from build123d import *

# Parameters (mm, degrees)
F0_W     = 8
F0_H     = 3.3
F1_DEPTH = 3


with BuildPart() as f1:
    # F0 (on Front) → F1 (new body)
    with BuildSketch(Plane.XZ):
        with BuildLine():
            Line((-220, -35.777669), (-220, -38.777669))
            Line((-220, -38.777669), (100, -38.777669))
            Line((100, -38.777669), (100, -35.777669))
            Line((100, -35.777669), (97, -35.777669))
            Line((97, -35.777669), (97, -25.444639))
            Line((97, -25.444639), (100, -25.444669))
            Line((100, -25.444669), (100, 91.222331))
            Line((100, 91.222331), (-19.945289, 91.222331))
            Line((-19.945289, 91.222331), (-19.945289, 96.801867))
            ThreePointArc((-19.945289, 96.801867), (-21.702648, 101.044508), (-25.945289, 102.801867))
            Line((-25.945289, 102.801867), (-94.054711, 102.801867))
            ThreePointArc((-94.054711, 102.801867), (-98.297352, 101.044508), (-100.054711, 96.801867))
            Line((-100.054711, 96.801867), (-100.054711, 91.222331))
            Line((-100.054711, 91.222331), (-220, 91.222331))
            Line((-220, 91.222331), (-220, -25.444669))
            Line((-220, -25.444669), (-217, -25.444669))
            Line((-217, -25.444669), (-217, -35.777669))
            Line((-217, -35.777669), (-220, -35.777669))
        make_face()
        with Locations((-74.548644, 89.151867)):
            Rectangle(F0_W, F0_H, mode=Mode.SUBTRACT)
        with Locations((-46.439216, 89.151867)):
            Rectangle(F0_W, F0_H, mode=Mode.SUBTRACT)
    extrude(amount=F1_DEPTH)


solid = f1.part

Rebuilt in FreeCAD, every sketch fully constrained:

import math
import FreeCAD as App
import Part
import Sketcher

V = App.Vector
Q = App.Units.Quantity


def add_polygon(sketch, points):
    """Adds a closed chain of lines whose ends are joined by coincident constraints."""
    first, n = sketch.GeometryCount, len(points)
    for a, b in zip(points, points[1:] + points[:1]):
        sketch.addGeometry(Part.LineSegment(App.Vector(*a, 0), App.Vector(*b, 0)), False)
    for i in range(n):
        sketch.addConstraint(Sketcher.Constraint("Coincident", first + i, 2, first + (i + 1) % n, 1))

doc = App.newDocument("Part")
params = doc.addObject("Spreadsheet::Sheet", "Params")
for row, (alias, value) in enumerate([
    ("sketch1_radius", "5.999999 mm"),
    ("sketch1_width", "320 mm"),
    ("sketch1_width2", "3 mm"),
    ("sketch1_width3", "8 mm"),
    ("sketch1_height", "3.3 mm"),
    ("pad1_length", "3 mm"),
], start=1):
    params.set(f"A{row}", alias)
    params.set(f"B{row}", "=" + value)
    params.setAlias(f"B{row}", alias)

body = doc.addObject("PartDesign::Body", "Body")

sketch1 = body.newObject("Sketcher::SketchObject", "Sketch")
sketch1.AttachmentSupport = (doc.getObject("XZ_Plane"), [""])
sketch1.MapMode = "FlatFace"
sketch1.addGeometry(Part.LineSegment(V(-220, -35.8, 0), V(-220, -38.8, 0)), False)
sketch1.addGeometry(Part.LineSegment(V(-220, -38.8, 0), V(100, -38.8, 0)), False)
sketch1.addGeometry(Part.LineSegment(V(100, -38.8, 0), V(100, -35.8, 0)), False)
sketch1.addGeometry(Part.LineSegment(V(100, -35.8, 0), V(97, -35.8, 0)), False)
sketch1.addGeometry(Part.LineSegment(V(97, -35.8, 0), V(97, -25.4, 0)), False)
sketch1.addGeometry(Part.LineSegment(V(97, -25.4, 0), V(100, -25.4, 0)), False)
sketch1.addGeometry(Part.LineSegment(V(100, -25.4, 0), V(100, 91.2, 0)), False)
sketch1.addGeometry(Part.LineSegment(V(100, 91.2, 0), V(-19.9, 91.2, 0)), False)
sketch1.addGeometry(Part.LineSegment(V(-19.9, 91.2, 0), V(-19.9, 96.8, 0)), False)
sketch1.addGeometry(Part.ArcOfCircle(Part.Circle(V(-25.9, 96.8, 0), V(0, 0, 1), 6), math.radians(0), math.radians(90)), False)
sketch1.addGeometry(Part.LineSegment(V(-25.9, 102.8, 0), V(-94.1, 102.8, 0)), False)
sketch1.addGeometry(Part.ArcOfCircle(Part.Circle(V(-94.1, 96.8, 0), V(0, 0, 1), 6), math.radians(90), math.radians(180)), False)
sketch1.addGeometry(Part.LineSegment(V(-100.1, 96.8, 0), V(-100.1, 91.2, 0)), False)
sketch1.addGeometry(Part.LineSegment(V(-100.1, 91.2, 0), V(-220, 91.2, 0)), False)
sketch1.addGeometry(Part.LineSegment(V(-220, 91.2, 0), V(-220, -25.4, 0)), False)
sketch1.addGeometry(Part.LineSegment(V(-220, -25.4, 0), V(-217, -25.4, 0)), False)
sketch1.addGeometry(Part.LineSegment(V(-217, -25.4, 0), V(-217, -35.8, 0)), False)
sketch1.addGeometry(Part.LineSegment(V(-217, -35.8, 0), V(-220, -35.8, 0)), False)
add_polygon(sketch1, [(-70.5, 87.5), (-78.5, 87.5), (-78.5, 90.8), (-70.5, 90.8)])
add_polygon(sketch1, [(-42.4, 87.5), (-50.4, 87.5), (-50.4, 90.8), (-42.4, 90.8)])
sketch1.addConstraint([
    Sketcher.Constraint("Coincident", 0, 2, 1, 1),
    Sketcher.Constraint("Coincident", 1, 2, 2, 1),
    Sketcher.Constraint("Coincident", 2, 2, 3, 1),
    Sketcher.Constraint("Coincident", 3, 2, 4, 1),
    Sketcher.Constraint("Coincident", 4, 2, 5, 1),
    Sketcher.Constraint("Coincident", 5, 2, 6, 1),
    Sketcher.Constraint("Coincident", 6, 2, 7, 1),
    Sketcher.Constraint("Coincident", 7, 2, 8, 1),
    Sketcher.Constraint("Tangent", 8, 2, 9, 1),
    Sketcher.Constraint("Tangent", 9, 2, 10, 1),
    Sketcher.Constraint("Tangent", 10, 2, 11, 1),
    Sketcher.Constraint("Tangent", 11, 2, 12, 1),
    Sketcher.Constraint("Coincident", 12, 2, 13, 1),
    Sketcher.Constraint("Coincident", 13, 2, 14, 1),
    Sketcher.Constraint("Coincident", 14, 2, 15, 1),
    Sketcher.Constraint("Coincident", 15, 2, 16, 1),
    Sketcher.Constraint("Coincident", 16, 2, 17, 1),
    Sketcher.Constraint("Coincident", 17, 2, 0, 1),
    Sketcher.Constraint("Vertical", 0),
    Sketcher.Constraint("Horizontal", 1),
    Sketcher.Constraint("Vertical", 2),
    Sketcher.Constraint("Horizontal", 3),
    Sketcher.Constraint("Vertical", 4),
    Sketcher.Constraint("Vertical", 6),
    Sketcher.Constraint("Horizontal", 7),
    Sketcher.Constraint("Vertical", 8),
    Sketcher.Constraint("Horizontal", 10),
    Sketcher.Constraint("Vertical", 12),
    Sketcher.Constraint("Horizontal", 13),
    Sketcher.Constraint("Vertical", 14),
    Sketcher.Constraint("Horizontal", 15),
    Sketcher.Constraint("Vertical", 16),
    Sketcher.Constraint("Horizontal", 17),
    Sketcher.Constraint("Horizontal", 18),
    Sketcher.Constraint("Vertical", 19),
    Sketcher.Constraint("Horizontal", 20),
    Sketcher.Constraint("Vertical", 21),
    Sketcher.Constraint("Horizontal", 22),
    Sketcher.Constraint("Vertical", 23),
    Sketcher.Constraint("Horizontal", 24),
    Sketcher.Constraint("Vertical", 25),
    Sketcher.Constraint("Equal", 9, 11),
    Sketcher.Constraint("Horizontal", 7, 2, 12, 2),
    Sketcher.Constraint("Horizontal", 5, 2, 14, 2),
    Sketcher.Constraint("Horizontal", 3, 2, 16, 2),
    Sketcher.Constraint("Horizontal", 21, 2, 22, 2),
    Sketcher.Constraint("Horizontal", 20, 2, 23, 2),
    Sketcher.Constraint("Vertical", 2, 2, 5, 2),
    Sketcher.Constraint("Vertical", 0, 2, 13, 2),
    Sketcher.Constraint("Equal", 7, 13),
    Sketcher.Constraint("Equal", 3, 15),
    Sketcher.Constraint("Equal", 20, 22),
    Sketcher.Constraint("Equal", 17, 0),
    Sketcher.Constraint("Radius", 9, Q("5.999999 mm")),
    Sketcher.Constraint("DistanceX", 1, 1, 1, 2, Q("320 mm")),
    Sketcher.Constraint("DistanceX", 3, 2, 3, 1, Q("3 mm")),
    Sketcher.Constraint("DistanceX", 18, 2, 18, 1, Q("8 mm")),
    Sketcher.Constraint("DistanceY", 19, 1, 19, 2, Q("3.3 mm")),
    Sketcher.Constraint("DistanceX", 0, 2, -1, 1, Q("220 mm")),
    Sketcher.Constraint("DistanceY", 2, 2, 6, 2, Q("127 mm")),
    Sketcher.Constraint("DistanceY", 19, 2, 11, 3, Q("6.000001 mm")),
    Sketcher.Constraint("DistanceY", 6, 1, 6, 2, Q("116.667 mm")),
    Sketcher.Constraint("DistanceX", 7, 2, 7, 1, Q("119.945289 mm")),
    Sketcher.Constraint("DistanceY", 4, 1, 4, 2, Q("10.33303 mm")),
    Sketcher.Constraint("DistanceY", 8, 1, 8, 2, Q("5.579536 mm")),
    Sketcher.Constraint("DistanceY", -1, 1, 9, 3, Q("96.801868 mm")),
    Sketcher.Constraint("DistanceX", 11, 3, 18, 2, Q("15.506068 mm")),
    Sketcher.Constraint("DistanceX", 22, 2, 9, 3, Q("24.493928 mm")),
])
sketch1.setExpression("Constraints[61]", "Params.sketch1_radius")
sketch1.setExpression("Constraints[62]", "Params.sketch1_width")
sketch1.setExpression("Constraints[63]", "Params.sketch1_width2")
sketch1.setExpression("Constraints[64]", "Params.sketch1_width3")
sketch1.setExpression("Constraints[65]", "Params.sketch1_height")
pad1 = body.newObject("PartDesign::Pad", "Pad")
pad1.Profile = sketch1
pad1.setExpression("Length", "Params.pad1_length")

doc.recompute()
